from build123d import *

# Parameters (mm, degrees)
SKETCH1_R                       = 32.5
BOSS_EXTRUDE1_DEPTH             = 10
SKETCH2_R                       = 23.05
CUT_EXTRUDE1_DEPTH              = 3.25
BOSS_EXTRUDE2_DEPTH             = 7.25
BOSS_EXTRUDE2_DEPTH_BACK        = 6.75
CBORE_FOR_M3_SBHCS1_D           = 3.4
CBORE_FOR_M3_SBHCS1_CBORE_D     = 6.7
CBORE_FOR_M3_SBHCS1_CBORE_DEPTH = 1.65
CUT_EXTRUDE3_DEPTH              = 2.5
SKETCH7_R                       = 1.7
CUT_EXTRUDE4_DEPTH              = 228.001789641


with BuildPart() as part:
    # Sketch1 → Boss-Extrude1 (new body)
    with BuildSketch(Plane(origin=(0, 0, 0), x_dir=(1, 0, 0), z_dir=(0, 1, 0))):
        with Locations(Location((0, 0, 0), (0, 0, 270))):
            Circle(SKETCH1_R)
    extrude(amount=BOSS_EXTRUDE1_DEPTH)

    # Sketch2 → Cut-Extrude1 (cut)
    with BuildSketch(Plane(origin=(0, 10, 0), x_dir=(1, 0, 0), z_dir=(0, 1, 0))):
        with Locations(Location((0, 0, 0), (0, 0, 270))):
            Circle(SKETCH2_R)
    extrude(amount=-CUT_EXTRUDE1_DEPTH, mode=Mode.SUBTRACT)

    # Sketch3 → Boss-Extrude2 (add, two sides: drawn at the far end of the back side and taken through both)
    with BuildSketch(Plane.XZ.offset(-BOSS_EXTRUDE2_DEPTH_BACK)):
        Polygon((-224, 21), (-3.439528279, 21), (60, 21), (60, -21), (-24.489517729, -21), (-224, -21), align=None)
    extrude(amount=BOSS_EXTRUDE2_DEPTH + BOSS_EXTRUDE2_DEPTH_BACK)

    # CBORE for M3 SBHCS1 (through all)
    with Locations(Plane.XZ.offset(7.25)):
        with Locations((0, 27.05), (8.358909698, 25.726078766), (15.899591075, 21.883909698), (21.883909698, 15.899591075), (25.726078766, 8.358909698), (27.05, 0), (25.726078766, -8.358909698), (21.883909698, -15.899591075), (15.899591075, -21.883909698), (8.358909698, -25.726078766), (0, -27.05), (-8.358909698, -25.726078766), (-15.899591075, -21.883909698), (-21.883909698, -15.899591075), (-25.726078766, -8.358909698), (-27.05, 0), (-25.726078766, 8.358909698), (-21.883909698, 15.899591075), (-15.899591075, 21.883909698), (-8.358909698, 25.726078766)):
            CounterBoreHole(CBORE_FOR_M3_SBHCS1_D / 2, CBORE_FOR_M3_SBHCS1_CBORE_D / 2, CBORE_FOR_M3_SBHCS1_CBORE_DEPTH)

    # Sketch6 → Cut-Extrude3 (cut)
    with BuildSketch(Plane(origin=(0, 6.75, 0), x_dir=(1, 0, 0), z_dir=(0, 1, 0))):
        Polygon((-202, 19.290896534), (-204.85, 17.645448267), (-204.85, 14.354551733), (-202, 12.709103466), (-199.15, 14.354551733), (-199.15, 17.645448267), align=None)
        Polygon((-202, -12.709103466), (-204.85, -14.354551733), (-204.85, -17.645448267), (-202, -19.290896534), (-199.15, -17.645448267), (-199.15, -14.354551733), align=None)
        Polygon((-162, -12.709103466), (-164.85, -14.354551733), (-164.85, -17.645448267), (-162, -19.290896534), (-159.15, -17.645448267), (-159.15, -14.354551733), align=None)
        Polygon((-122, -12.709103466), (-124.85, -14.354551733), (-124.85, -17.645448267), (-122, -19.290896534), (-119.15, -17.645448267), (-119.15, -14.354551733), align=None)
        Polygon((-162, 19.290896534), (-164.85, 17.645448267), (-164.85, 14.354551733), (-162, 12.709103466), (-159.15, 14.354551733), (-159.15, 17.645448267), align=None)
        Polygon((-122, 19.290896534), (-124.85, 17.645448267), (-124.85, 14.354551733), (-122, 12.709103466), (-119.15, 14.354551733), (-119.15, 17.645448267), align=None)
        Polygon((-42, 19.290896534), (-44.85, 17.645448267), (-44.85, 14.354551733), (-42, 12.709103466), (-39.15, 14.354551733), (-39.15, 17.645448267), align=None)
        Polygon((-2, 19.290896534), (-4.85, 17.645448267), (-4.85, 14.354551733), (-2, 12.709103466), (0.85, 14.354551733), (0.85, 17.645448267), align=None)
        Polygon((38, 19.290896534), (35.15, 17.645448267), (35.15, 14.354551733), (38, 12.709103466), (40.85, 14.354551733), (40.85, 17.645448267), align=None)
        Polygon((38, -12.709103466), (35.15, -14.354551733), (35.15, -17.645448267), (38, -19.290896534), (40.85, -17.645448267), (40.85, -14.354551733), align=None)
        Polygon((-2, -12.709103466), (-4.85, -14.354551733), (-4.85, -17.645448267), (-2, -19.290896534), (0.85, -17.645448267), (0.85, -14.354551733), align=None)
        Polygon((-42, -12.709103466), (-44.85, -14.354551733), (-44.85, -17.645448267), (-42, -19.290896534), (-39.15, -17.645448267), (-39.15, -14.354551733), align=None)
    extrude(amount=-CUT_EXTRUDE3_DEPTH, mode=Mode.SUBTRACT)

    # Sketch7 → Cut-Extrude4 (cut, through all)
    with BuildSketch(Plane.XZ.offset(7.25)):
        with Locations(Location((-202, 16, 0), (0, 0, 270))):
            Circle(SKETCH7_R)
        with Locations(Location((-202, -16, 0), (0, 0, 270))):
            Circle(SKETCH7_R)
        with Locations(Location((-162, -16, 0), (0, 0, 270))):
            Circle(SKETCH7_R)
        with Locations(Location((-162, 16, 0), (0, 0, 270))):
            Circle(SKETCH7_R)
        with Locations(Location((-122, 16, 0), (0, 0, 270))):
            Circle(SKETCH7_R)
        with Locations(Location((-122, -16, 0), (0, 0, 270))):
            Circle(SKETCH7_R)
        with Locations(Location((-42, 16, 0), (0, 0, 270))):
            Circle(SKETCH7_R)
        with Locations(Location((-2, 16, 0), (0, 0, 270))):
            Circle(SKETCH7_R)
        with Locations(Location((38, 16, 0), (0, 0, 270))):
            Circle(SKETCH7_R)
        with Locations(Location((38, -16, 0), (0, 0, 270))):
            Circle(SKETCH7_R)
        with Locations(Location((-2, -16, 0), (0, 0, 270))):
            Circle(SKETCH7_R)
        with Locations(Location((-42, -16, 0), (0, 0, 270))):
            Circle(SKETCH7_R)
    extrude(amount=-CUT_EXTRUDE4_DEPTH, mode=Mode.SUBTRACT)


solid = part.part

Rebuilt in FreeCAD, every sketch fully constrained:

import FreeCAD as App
import Part
import Sketcher
from FreeCAD import Vector
Q = App.Units.Quantity

doc = App.newDocument("Part")
params = doc.addObject("Spreadsheet::Sheet", "Params")
for row, (alias, value) in enumerate([
    ("sketch1_diameter", "65 mm"),
    ("pad1_length", "10 mm"),
    ("sketch2_diameter", "46.1 mm"),
    ("pocket1_length", "3.25 mm"),
    ("sketch3_width", "284 mm"),
    ("sketch3_height", "42 mm"),
    ("pad2_length", "7.25 mm"),
    ("pad2_length2", "6.75 mm"),
    ("sketch4_diameter", "3.4 mm"),
    ("hole_diameter", "3.4 mm"),
    ("hole_cbore_diameter", "6.7 mm"),
    ("hole_cbore_depth", "1.65 mm"),
    ("pocket2_length", "2.5 mm"),
    ("sketch6_diameter", "3.4 mm"),
], start=1):
    params.set(f"A{row}", alias)
    params.set(f"B{row}", "=" + value)
    params.setAlias(f"B{row}", alias)

body = doc.addObject("PartDesign::Body", "Body")

# Sketch on XZ plane
sketch1 = body.newObject("Sketcher::SketchObject", "Sketch")
sketch1.AttachmentSupport = (doc.getObject("XZ_Plane"), [""])
sketch1.MapMode = "FlatFace"
sketch1.addGeometry(Part.Circle(Vector(0, 0, 0), Vector(0, 0, 1), 32), False)
sketch1.addConstraint([
    Sketcher.Constraint("Coincident", 0, 3, -1, 1),
    Sketcher.Constraint("Diameter", 0, Q("65 mm")),
])
sketch1.setExpression("Constraints[1]", "Params.sketch1_diameter")
pad1 = body.newObject("PartDesign::Pad", "Pad")
pad1.Profile = sketch1
pad1.setExpression("Length", "Params.pad1_length")
pad1.Reversed = True

# Sketch on XZ plane
sketch2 = body.newObject("Sketcher::SketchObject", "Sketch001")
sketch2.AttachmentSupport = (doc.getObject("XZ_Plane"), [""])
sketch2.MapMode = "FlatFace"
sketch2.AttachmentOffset = App.Placement(Vector(0, 0, -10), App.Rotation())
sketch2.addGeometry(Part.Circle(Vector(0, 0, 0), Vector(0, 0, 1), 23), False)
sketch2.addConstraint([
    Sketcher.Constraint("Coincident", 0, 3, -1, 1),
    Sketcher.Constraint("Diameter", 0, Q("46.1 mm")),
])
sketch2.setExpression("Constraints[1]", "Params.sketch2_diameter")
pocket1 = body.newObject("PartDesign::Pocket", "Pocket")
pocket1.Profile = sketch2
pocket1.setExpression("Length", "Params.pocket1_length")
pocket1.Reversed = True

# Sketch on XZ plane
sketch3 = body.newObject("Sketcher::SketchObject", "Sketch002")
sketch3.AttachmentSupport = (doc.getObject("XZ_Plane"), [""])
sketch3.MapMode = "FlatFace"
sketch3.addGeometry([
    Part.LineSegment(Vector(60, 21, 0), Vector(-224, 21, 0)),
    Part.LineSegment(Vector(-224, 21, 0), Vector(-224, -21, 0)),
    Part.LineSegment(Vector(-224, -21, 0), Vector(60, -21, 0)),
    Part.LineSegment(Vector(60, -21, 0), Vector(60, 21, 0)),
], False)
sketch3.addConstraint([
    Sketcher.Constraint("Coincident", 0, 2, 1, 1),
    Sketcher.Constraint("Coincident", 1, 2, 2, 1),
    Sketcher.Constraint("Coincident", 2, 2, 3, 1),
    Sketcher.Constraint("Coincident", 3, 2, 0, 1),
    Sketcher.Constraint("Horizontal", 0),
    Sketcher.Constraint("Vertical", 1),
    Sketcher.Constraint("Horizontal", 2),
    Sketcher.Constraint("Vertical", 3),
    Sketcher.Constraint("DistanceX", 0, 2, 0, 1, Q("284 mm")),
    Sketcher.Constraint("DistanceY", 1, 2, 1, 1, Q("42 mm")),
    Sketcher.Constraint("DistanceX", 0, 2, -1, 1, Q("224 mm")),
    Sketcher.Constraint("DistanceY", -1, 1, 0, 2, Q("21 mm")),
])
sketch3.setExpression("Constraints[8]", "Params.sketch3_width")
sketch3.setExpression("Constraints[9]", "Params.sketch3_height")
pad2 = body.newObject("PartDesign::Pad", "Pad001")
pad2.Profile = sketch3
pad2.Type = "TwoLengths"
pad2.setExpression("Length", "Params.pad2_length")
pad2.setExpression("Length2", "Params.pad2_length2")

# Sketch on XZ plane
sketch4 = body.newObject("Sketcher::SketchObject", "Sketch003")
sketch4.AttachmentSupport = (doc.getObject("XZ_Plane"), [""])
sketch4.MapMode = "FlatFace"
sketch4.AttachmentOffset = App.Placement(Vector(0, 0, 7.25), App.Rotation())
sketch4.addGeometry([
    Part.Circle(Vector(0, 27.1, 0), Vector(0, 0, 1), 1.7),  # 0
    Part.Circle(Vector(8.4, 25.7, 0), Vector(0, 0, 1), 1.7),  # 1
    Part.Circle(Vector(15.9, 21.9, 0), Vector(0, 0, 1), 1.7),  # 2
    Part.Circle(Vector(21.9, 15.9, 0), Vector(0, 0, 1), 1.7),  # 3
    Part.Circle(Vector(25.7, 8.4, 0), Vector(0, 0, 1), 1.7),  # 4
    Part.Circle(Vector(27.1, 0, 0), Vector(0, 0, 1), 1.7),  # 5
    Part.Circle(Vector(25.7, -8.4, 0), Vector(0, 0, 1), 1.7),  # 6
    Part.Circle(Vector(21.9, -15.9, 0), Vector(0, 0, 1), 1.7),  # 7
    Part.Circle(Vector(15.9, -21.9, 0), Vector(0, 0, 1), 1.7),  # 8
    Part.Circle(Vector(8.4, -25.7, 0), Vector(0, 0, 1), 1.7),  # 9
    Part.Circle(Vector(0, -27.1, 0), Vector(0, 0, 1), 1.7),  # 10
    Part.Circle(Vector(-8.4, -25.7, 0), Vector(0, 0, 1), 1.7),  # 11
    Part.Circle(Vector(-15.9, -21.9, 0), Vector(0, 0, 1), 1.7),  # 12
    Part.Circle(Vector(-21.9, -15.9, 0), Vector(0, 0, 1), 1.7),  # 13
    Part.Circle(Vector(-25.7, -8.4, 0), Vector(0, 0, 1), 1.7),  # 14
    Part.Circle(Vector(-27.1, 0, 0), Vector(0, 0, 1), 1.7),  # 15
    Part.Circle(Vector(-25.7, 8.4, 0), Vector(0, 0, 1), 1.7),  # 16
    Part.Circle(Vector(-21.9, 15.9, 0), Vector(0, 0, 1), 1.7),  # 17
    Part.Circle(Vector(-15.9, 21.9, 0), Vector(0, 0, 1), 1.7),  # 18
    Part.Circle(Vector(-8.4, 25.7, 0), Vector(0, 0, 1), 1.7),  # 19
], False)
sketch4.addConstraint([
    Sketcher.Constraint("Equal", 0, 1),
    Sketcher.Constraint("Equal", 1, 2),
    Sketcher.Constraint("Equal", 2, 3),
    Sketcher.Constraint("Equal", 3, 4),
    Sketcher.Constraint("Equal", 4, 5),
    Sketcher.Constraint("Equal", 5, 6),
    Sketcher.Constraint("Equal", 6, 7),
    Sketcher.Constraint("Equal", 7, 8),
    Sketcher.Constraint("Equal", 8, 9),
    Sketcher.Constraint("Equal", 9, 10),
    Sketcher.Constraint("Equal", 10, 11),
    Sketcher.Constraint("Equal", 11, 12),
    Sketcher.Constraint("Equal", 12, 13),
    Sketcher.Constraint("Equal", 13, 14),
    Sketcher.Constraint("Equal", 14, 15),
    Sketcher.Constraint("Equal", 15, 16),
    Sketcher.Constraint("Equal", 16, 17),
    Sketcher.Constraint("Equal", 17, 18),
    Sketcher.Constraint("Equal", 18, 19),
    Sketcher.Constraint("Symmetric", 0, 3, 10, 3, -1, 1),
    Sketcher.Constraint("Symmetric", 1, 3, 11, 3, -1, 1),
    Sketcher.Constraint("Symmetric", 2, 3, 12, 3, -1, 1),
    Sketcher.Constraint("Symmetric", 3, 3, 13, 3, -1, 1),
    Sketcher.Constraint("Symmetric", 4, 3, 14, 3, -1, 1),
    Sketcher.Constraint("Symmetric", 5, 3, 15, 3, -1, 1),
    Sketcher.Constraint("Symmetric", 6, 3, 16, 3, -1, 1),
    Sketcher.Constraint("Symmetric", 7, 3, 17, 3, -1, 1),
    Sketcher.Constraint("Symmetric", 8, 3, 18, 3, -1, 1),
    Sketcher.Constraint("Symmetric", 9, 3, 19, 3, -1, 1),
    Sketcher.Constraint("Symmetric", 9, 3, 11, 3, -2),
    Sketcher.Constraint("Symmetric", 8, 3, 12, 3, -2),
    Sketcher.Constraint("Symmetric", 7, 3, 13, 3, -2),
    Sketcher.Constraint("Symmetric", 6, 3, 14, 3, -2),
    Sketcher.Constraint("PointOnObject", 0, 3, -2),
    Sketcher.Constraint("PointOnObject", 5, 3, -1),
    Sketcher.Constraint("Diameter", 0, Q("3.4 mm")),
    Sketcher.Constraint("DistanceY", -1, 1, 0, 3, Q("27.05 mm")),
    Sketcher.Constraint("DistanceX", -1, 1, 5, 3, Q("27.05 mm")),
    Sketcher.Constraint("DistanceX", 1, 3, 3, 3, Q("13.525 mm")),
    Sketcher.Constraint("DistanceY", 4, 3, 2, 3, Q("13.525 mm")),
    Sketcher.Constraint("DistanceY", 6, 3, 3, 3, Q("24.258501 mm")),
    Sketcher.Constraint("DistanceX", 11, 3, 8, 3, Q("24.258501 mm")),
    Sketcher.Constraint("DistanceX", -1, 1, 1, 3, Q("8.35891 mm")),
    Sketcher.Constraint("DistanceY", -1, 1, 1, 3, Q("25.726079 mm")),
    Sketcher.Constraint("DistanceY", -1, 1, 2, 3, Q("21.88391 mm")),
    Sketcher.Constraint("DistanceX", -1, 1, 4, 3, Q("25.726079 mm")),
])
sketch4.setExpression("Constraints[35]", "Params.sketch4_diameter")
doc.recompute()
hole = body.newObject("PartDesign::Hole", "Hole")
hole.Profile = sketch4
hole.ThreadType = "None"
hole.setExpression("Diameter", "Params.hole_diameter")
hole.DepthType = "ThroughAll"
hole.HoleCutType = "Counterbore"
hole.setExpression("HoleCutDiameter", "Params.hole_cbore_diameter")
hole.setExpression("HoleCutDepth", "Params.hole_cbore_depth")

# Sketch on XZ plane
sketch5 = body.newObject("Sketcher::SketchObject", "Sketch004")
sketch5.AttachmentSupport = (doc.getObject("XZ_Plane"), [""])
sketch5.MapMode = "FlatFace"
sketch5.AttachmentOffset = App.Placement(Vector(0, 0, -6.75), App.Rotation())
sketch5.addGeometry([
    Part.LineSegment(Vector(-202, -19.3, 0), Vector(-204.8, -17.6, 0)),  # 0
    Part.LineSegment(Vector(-204.8, -17.6, 0), Vector(-204.8, -14.4, 0)),  # 1
    Part.LineSegment(Vector(-204.8, -14.4, 0), Vector(-202, -12.7, 0)),  # 2
    Part.LineSegment(Vector(-202, -12.7, 0), Vector(-199.2, -14.4, 0)),  # 3
    Part.LineSegment(Vector(-199.2, -14.4, 0), Vector(-199.2, -17.6, 0)),  # 4
    Part.LineSegment(Vector(-199.2, -17.6, 0), Vector(-202, -19.3, 0)),  # 5
    Part.LineSegment(Vector(-202, 12.7, 0), Vector(-204.8, 14.4, 0)),  # 6
    Part.LineSegment(Vector(-204.8, 14.4, 0), Vector(-204.8, 17.6, 0)),  # 7
    Part.LineSegment(Vector(-204.8, 17.6, 0), Vector(-202, 19.3, 0)),  # 8
    Part.LineSegment(Vector(-202, 19.3, 0), Vector(-199.2, 17.6, 0)),  # 9
    Part.LineSegment(Vector(-199.2, 17.6, 0), Vector(-199.2, 14.4, 0)),  # 10
    Part.LineSegment(Vector(-199.2, 14.4, 0), Vector(-202, 12.7, 0)),  # 11
    Part.LineSegment(Vector(-162, 12.7, 0), Vector(-164.8, 14.4, 0)),  # 12
    Part.LineSegment(Vector(-164.8, 14.4, 0), Vector(-164.8, 17.6, 0)),  # 13
    Part.LineSegment(Vector(-164.8, 17.6, 0), Vector(-162, 19.3, 0)),  # 14
    Part.LineSegment(Vector(-162, 19.3, 0), Vector(-159.2, 17.6, 0)),  # 15
    Part.LineSegment(Vector(-159.2, 17.6, 0), Vector(-159.2, 14.4, 0)),  # 16
    Part.LineSegment(Vector(-159.2, 14.4, 0), Vector(-162, 12.7, 0)),  # 17
    Part.LineSegment(Vector(-122, 12.7, 0), Vector(-124.8, 14.4, 0)),  # 18
    Part.LineSegment(Vector(-124.8, 14.4, 0), Vector(-124.8, 17.6, 0)),  # 19
    Part.LineSegment(Vector(-124.8, 17.6, 0), Vector(-122, 19.3, 0)),  # 20
    Part.LineSegment(Vector(-122, 19.3, 0), Vector(-119.2, 17.6, 0)),  # 21
    Part.LineSegment(Vector(-119.2, 17.6, 0), Vector(-119.2, 14.4, 0)),  # 22
    Part.LineSegment(Vector(-119.2, 14.4, 0), Vector(-122, 12.7, 0)),  # 23
    Part.LineSegment(Vector(-162, -19.3, 0), Vector(-164.8, -17.6, 0)),  # 24
    Part.LineSegment(Vector(-164.8, -17.6, 0), Vector(-164.8, -14.4, 0)),  # 25
    Part.LineSegment(Vector(-164.8, -14.4, 0), Vector(-162, -12.7, 0)),  # 26
    Part.LineSegment(Vector(-162, -12.7, 0), Vector(-159.2, -14.4, 0)),  # 27
    Part.LineSegment(Vector(-159.2, -14.4, 0), Vector(-159.2, -17.6, 0)),  # 28
    Part.LineSegment(Vector(-159.2, -17.6, 0), Vector(-162, -19.3, 0)),  # 29
    Part.LineSegment(Vector(-122, -19.3, 0), Vector(-124.8, -17.6, 0)),  # 30
    Part.LineSegment(Vector(-124.8, -17.6, 0), Vector(-124.8, -14.4, 0)),  # 31
    Part.LineSegment(Vector(-124.8, -14.4, 0), Vector(-122, -12.7, 0)),  # 32
    Part.LineSegment(Vector(-122, -12.7, 0), Vector(-119.2, -14.4, 0)),  # 33
    Part.LineSegment(Vector(-119.2, -14.4, 0), Vector(-119.2, -17.6, 0)),  # 34
    Part.LineSegment(Vector(-119.2, -17.6, 0), Vector(-122, -19.3, 0)),  # 35
    Part.LineSegment(Vector(-42, -19.3, 0), Vector(-44.9, -17.6, 0)),  # 36
    Part.LineSegment(Vector(-44.9, -17.6, 0), Vector(-44.9, -14.4, 0)),  # 37
    Part.LineSegment(Vector(-44.9, -14.4, 0), Vector(-42, -12.7, 0)),  # 38
    Part.LineSegment(Vector(-42, -12.7, 0), Vector(-39.1, -14.4, 0)),  # 39
    Part.LineSegment(Vector(-39.1, -14.4, 0), Vector(-39.1, -17.6, 0)),  # 40
    Part.LineSegment(Vector(-39.1, -17.6, 0), Vector(-42, -19.3, 0)),  # 41
    Part.LineSegment(Vector(-2, -19.3, 0), Vector(-4.8, -17.6, 0)),  # 42
    Part.LineSegment(Vector(-4.8, -17.6, 0), Vector(-4.8, -14.4, 0)),  # 43
    Part.LineSegment(Vector(-4.8, -14.4, 0), Vector(-2, -12.7, 0)),  # 44
    Part.LineSegment(Vector(-2, -12.7, 0), Vector(0.8, -14.4, 0)),  # 45
    Part.LineSegment(Vector(0.8, -14.4, 0), Vector(0.8, -17.6, 0)),  # 46
    Part.LineSegment(Vector(0.8, -17.6, 0), Vector(-2, -19.3, 0)),  # 47
    Part.LineSegment(Vector(38, -19.3, 0), Vector(35.1, -17.6, 0)),  # 48
    Part.LineSegment(Vector(35.1, -17.6, 0), Vector(35.1, -14.4, 0)),  # 49
    Part.LineSegment(Vector(35.1, -14.4, 0), Vector(38, -12.7, 0)),  # 50
    Part.LineSegment(Vector(38, -12.7, 0), Vector(40.9, -14.4, 0)),  # 51
    Part.LineSegment(Vector(40.9, -14.4, 0), Vector(40.9, -17.6, 0)),  # 52
    Part.LineSegment(Vector(40.9, -17.6, 0), Vector(38, -19.3, 0)),  # 53
    Part.LineSegment(Vector(38, 12.7, 0), Vector(35.1, 14.4, 0)),  # 54
    Part.LineSegment(Vector(35.1, 14.4, 0), Vector(35.1, 17.6, 0)),  # 55
    Part.LineSegment(Vector(35.1, 17.6, 0), Vector(38, 19.3, 0)),  # 56
    Part.LineSegment(Vector(38, 19.3, 0), Vector(40.9, 17.6, 0)),  # 57
    Part.LineSegment(Vector(40.9, 17.6, 0), Vector(40.9, 14.4, 0)),  # 58
    Part.LineSegment(Vector(40.9, 14.4, 0), Vector(38, 12.7, 0)),  # 59
    Part.LineSegment(Vector(-2, 12.7, 0), Vector(-4.8, 14.4, 0)),  # 60
    Part.LineSegment(Vector(-4.8, 14.4, 0), Vector(-4.8, 17.6, 0)),  # 61
    Part.LineSegment(Vector(-4.8, 17.6, 0), Vector(-2, 19.3, 0)),  # 62
    Part.LineSegment(Vector(-2, 19.3, 0), Vector(0.8, 17.6, 0)),  # 63
    Part.LineSegment(Vector(0.8, 17.6, 0), Vector(0.8, 14.4, 0)),  # 64
    Part.LineSegment(Vector(0.8, 14.4, 0), Vector(-2, 12.7, 0)),  # 65
    Part.LineSegment(Vector(-42, 12.7, 0), Vector(-44.9, 14.4, 0)),  # 66
    Part.LineSegment(Vector(-44.9, 14.4, 0), Vector(-44.9, 17.6, 0)),  # 67
    Part.LineSegment(Vector(-44.9, 17.6, 0), Vector(-42, 19.3, 0)),  # 68
    Part.LineSegment(Vector(-42, 19.3, 0), Vector(-39.1, 17.6, 0)),  # 69
    Part.LineSegment(Vector(-39.1, 17.6, 0), Vector(-39.1, 14.4, 0)),  # 70
    Part.LineSegment(Vector(-39.1, 14.4, 0), Vector(-42, 12.7, 0)),  # 71
], False)
sketch5.addConstraint([
    Sketcher.Constraint("Coincident", 0, 2, 1, 1),
    Sketcher.Constraint("Coincident", 1, 2, 2, 1),
    Sketcher.Constraint("Coincident", 2, 2, 3, 1),
    Sketcher.Constraint("Coincident", 3, 2, 4, 1),
    Sketcher.Constraint("Coincident", 4, 2, 5, 1),
    Sketcher.Constraint("Coincident", 5, 2, 0, 1),
    Sketcher.Constraint("Coincident", 6, 2, 7, 1),
    Sketcher.Constraint("Coincident", 7, 2, 8, 1),
    Sketcher.Constraint("Coincident", 8, 2, 9, 1),
    Sketcher.Constraint("Coincident", 9, 2, 10, 1),
    Sketcher.Constraint("Coincident", 10, 2, 11, 1),
    Sketcher.Constraint("Coincident", 11, 2, 6, 1),
    Sketcher.Constraint("Coincident", 12, 2, 13, 1),
    Sketcher.Constraint("Coincident", 13, 2, 14, 1),
    Sketcher.Constraint("Coincident", 14, 2, 15, 1),
    Sketcher.Constraint("Coincident", 15, 2, 16, 1),
    Sketcher.Constraint("Coincident", 16, 2, 17, 1),
    Sketcher.Constraint("Coincident", 17, 2, 12, 1),
    Sketcher.Constraint("Coincident", 18, 2, 19, 1),
    Sketcher.Constraint("Coincident", 19, 2, 20, 1),
    Sketcher.Constraint("Coincident", 20, 2, 21, 1),
    Sketcher.Constraint("Coincident", 21, 2, 22, 1),
    Sketcher.Constraint("Coincident", 22, 2, 23, 1),
    Sketcher.Constraint("Coincident", 23, 2, 18, 1),
    Sketcher.Constraint("Coincident", 24, 2, 25, 1),
    Sketcher.Constraint("Coincident", 25, 2, 26, 1),
    Sketcher.Constraint("Coincident", 26, 2, 27, 1),
    Sketcher.Constraint("Coincident", 27, 2, 28, 1),
    Sketcher.Constraint("Coincident", 28, 2, 29, 1),
    Sketcher.Constraint("Coincident", 29, 2, 24, 1),
    Sketcher.Constraint("Coincident", 30, 2, 31, 1),
    Sketcher.Constraint("Coincident", 31, 2, 32, 1),
    Sketcher.Constraint("Coincident", 32, 2, 33, 1),
    Sketcher.Constraint("Coincident", 33, 2, 34, 1),
    Sketcher.Constraint("Coincident", 34, 2, 35, 1),
    Sketcher.Constraint("Coincident", 35, 2, 30, 1),
    Sketcher.Constraint("Coincident", 36, 2, 37, 1),
    Sketcher.Constraint("Coincident", 37, 2, 38, 1),
    Sketcher.Constraint("Coincident", 38, 2, 39, 1),
    Sketcher.Constraint("Coincident", 39, 2, 40, 1),
    Sketcher.Constraint("Coincident", 40, 2, 41, 1),
    Sketcher.Constraint("Coincident", 41, 2, 36, 1),
    Sketcher.Constraint("Coincident", 42, 2, 43, 1),
    Sketcher.Constraint("Coincident", 43, 2, 44, 1),
    Sketcher.Constraint("Coincident", 44, 2, 45, 1),
    Sketcher.Constraint("Coincident", 45, 2, 46, 1),
    Sketcher.Constraint("Coincident", 46, 2, 47, 1),
    Sketcher.Constraint("Coincident", 47, 2, 42, 1),
    Sketcher.Constraint("Coincident", 48, 2, 49, 1),
    Sketcher.Constraint("Coincident", 49, 2, 50, 1),
    Sketcher.Constraint("Coincident", 50, 2, 51, 1),
    Sketcher.Constraint("Coincident", 51, 2, 52, 1),
    Sketcher.Constraint("Coincident", 52, 2, 53, 1),
    Sketcher.Constraint("Coincident", 53, 2, 48, 1),
    Sketcher.Constraint("Coincident", 54, 2, 55, 1),
    Sketcher.Constraint("Coincident", 55, 2, 56, 1),
    Sketcher.Constraint("Coincident", 56, 2, 57, 1),
    Sketcher.Constraint("Coincident", 57, 2, 58, 1),
    Sketcher.Constraint("Coincident", 58, 2, 59, 1),
    Sketcher.Constraint("Coincident", 59, 2, 54, 1),
    Sketcher.Constraint("Coincident", 60, 2, 61, 1),
    Sketcher.Constraint("Coincident", 61, 2, 62, 1),
    Sketcher.Constraint("Coincident", 62, 2, 63, 1),
    Sketcher.Constraint("Coincident", 63, 2, 64, 1),
    Sketcher.Constraint("Coincident", 64, 2, 65, 1),
    Sketcher.Constraint("Coincident", 65, 2, 60, 1),
    Sketcher.Constraint("Coincident", 66, 2, 67, 1),
    Sketcher.Constraint("Coincident", 67, 2, 68, 1),
    Sketcher.Constraint("Coincident", 68, 2, 69, 1),
    Sketcher.Constraint("Coincident", 69, 2, 70, 1),
    Sketcher.Constraint("Coincident", 70, 2, 71, 1),
    Sketcher.Constraint("Coincident", 71, 2, 66, 1),
    Sketcher.Constraint("Vertical", 1),
    Sketcher.Constraint("Vertical", 4),
    Sketcher.Constraint("Vertical", 7),
    Sketcher.Constraint("Vertical", 10),
    Sketcher.Constraint("Vertical", 13),
    Sketcher.Constraint("Vertical", 16),
    Sketcher.Constraint("Vertical", 19),
    Sketcher.Constraint("Vertical", 22),
    Sketcher.Constraint("Vertical", 25),
    Sketcher.Constraint("Vertical", 28),
    Sketcher.Constraint("Vertical", 31),
    Sketcher.Constraint("Vertical", 34),
    Sketcher.Constraint("Vertical", 37),
    Sketcher.Constraint("Vertical", 40),
    Sketcher.Constraint("Vertical", 43),
    Sketcher.Constraint("Vertical", 46),
    Sketcher.Constraint("Vertical", 49),
    Sketcher.Constraint("Vertical", 52),
    Sketcher.Constraint("Vertical", 55),
    Sketcher.Constraint("Vertical", 58),
    Sketcher.Constraint("Vertical", 61),
    Sketcher.Constraint("Vertical", 64),
    Sketcher.Constraint("Vertical", 67),
    Sketcher.Constraint("Vertical", 70),
    Sketcher.Constraint("Symmetric", 1, 2, 6, 2, -1),
    Sketcher.Constraint("Symmetric", 5, 2, 8, 2, -1),
    Sketcher.Constraint("Symmetric", 4, 2, 9, 2, -1),
    Sketcher.Constraint("Symmetric", 2, 2, 11, 2, -1),
    Sketcher.Constraint("Symmetric", 13, 2, 24, 2, -1),
    Sketcher.Constraint("Symmetric", 17, 2, 26, 2, -1),
    Sketcher.Constraint("Symmetric", 16, 2, 27, 2, -1),
    Sketcher.Constraint("Symmetric", 14, 2, 29, 2, -1),
    Sketcher.Constraint("Symmetric", 19, 2, 30, 2, -1),
    Sketcher.Constraint("Symmetric", 23, 2, 32, 2, -1),
    Sketcher.Constraint("Symmetric", 22, 2, 33, 2, -1),
    Sketcher.Constraint("Symmetric", 20, 2, 35, 2, -1),
    Sketcher.Constraint("Symmetric", 49, 2, 54, 2, -1),
    Sketcher.Constraint("Symmetric", 53, 2, 56, 2, -1),
    Sketcher.Constraint("Symmetric", 52, 2, 57, 2, -1),
    Sketcher.Constraint("Symmetric", 50, 2, 59, 2, -1),
    Sketcher.Constraint("Symmetric", 43, 2, 60, 2, -1),
    Sketcher.Constraint("Symmetric", 47, 2, 62, 2, -1),
    Sketcher.Constraint("Symmetric", 46, 2, 63, 2, -1),
    Sketcher.Constraint("Symmetric", 44, 2, 65, 2, -1),
    Sketcher.Constraint("Symmetric", 37, 2, 66, 2, -1),
    Sketcher.Constraint("Symmetric", 41, 2, 68, 2, -1),
    Sketcher.Constraint("Symmetric", 40, 2, 69, 2, -1),
    Sketcher.Constraint("Symmetric", 38, 2, 71, 2, -1),
    Sketcher.Constraint("Parallel", 0, 3),
    Sketcher.Constraint("Parallel", 2, 5),
    Sketcher.Constraint("Parallel", 3, 6),
    Sketcher.Constraint("Parallel", 5, 8),
    Sketcher.Constraint("Parallel", 8, 11),
    Sketcher.Constraint("Parallel", 9, 12),
    Sketcher.Constraint("Parallel", 11, 14),
    Sketcher.Constraint("Parallel", 12, 15),
    Sketcher.Constraint("Parallel", 14, 17),
    Sketcher.Constraint("Parallel", 15, 18),
    Sketcher.Constraint("Parallel", 17, 20),
    Sketcher.Constraint("Parallel", 18, 21),
    Sketcher.Constraint("Parallel", 20, 23),
    Sketcher.Constraint("Parallel", 23, 26),
    Sketcher.Constraint("Parallel", 26, 29),
    Sketcher.Constraint("Parallel", 29, 32),
    Sketcher.Constraint("Parallel", 32, 35),
    Sketcher.Constraint("Parallel", 33, 36),
    Sketcher.Constraint("Parallel", 35, 38),
    Sketcher.Constraint("Parallel", 36, 39),
    Sketcher.Constraint("Parallel", 38, 41),
    Sketcher.Constraint("Parallel", 39, 42),
    Sketcher.Constraint("Parallel", 41, 44),
    Sketcher.Constraint("Parallel", 42, 45),
    Sketcher.Constraint("Parallel", 44, 47),
    Sketcher.Constraint("Parallel", 45, 48),
    Sketcher.Constraint("Parallel", 47, 50),
    Sketcher.Constraint("Parallel", 48, 51),
    Sketcher.Constraint("Parallel", 50, 53),
    Sketcher.Constraint("Parallel", 53, 56),
    Sketcher.Constraint("Parallel", 56, 59),
    Sketcher.Constraint("Parallel", 59, 62),
    Sketcher.Constraint("Parallel", 62, 65),
    Sketcher.Constraint("Parallel", 65, 68),
    Sketcher.Constraint("Parallel", 68, 71),
    Sketcher.Constraint("Horizontal", 1, 2, 3, 2),
    Sketcher.Constraint("Horizontal", 0, 2, 4, 2),
    Sketcher.Constraint("Horizontal", 10, 2, 12, 2),
    Sketcher.Constraint("Horizontal", 9, 2, 13, 2),
    Sketcher.Constraint("Horizontal", 8, 2, 14, 2),
    Sketcher.Constraint("Horizontal", 13, 2, 15, 2),
    Sketcher.Constraint("Horizontal", 12, 2, 16, 2),
    Sketcher.Constraint("Horizontal", 16, 2, 18, 2),
    Sketcher.Constraint("Horizontal", 15, 2, 19, 2),
    Sketcher.Constraint("Horizontal", 14, 2, 20, 2),
    Sketcher.Constraint("Horizontal", 19, 2, 21, 2),
    Sketcher.Constraint("Horizontal", 18, 2, 22, 2),
    Sketcher.Constraint("Horizontal", 34, 2, 36, 2),
    Sketcher.Constraint("Horizontal", 33, 2, 37, 2),
    Sketcher.Constraint("Horizontal", 32, 2, 38, 2),
    Sketcher.Constraint("Horizontal", 37, 2, 39, 2),
    Sketcher.Constraint("Horizontal", 36, 2, 40, 2),
    Sketcher.Constraint("Horizontal", 40, 2, 42, 2),
    Sketcher.Constraint("Horizontal", 39, 2, 43, 2),
    Sketcher.Constraint("Horizontal", 38, 2, 44, 2),
    Sketcher.Constraint("Horizontal", 43, 2, 45, 2),
    Sketcher.Constraint("Horizontal", 42, 2, 46, 2),
    Sketcher.Constraint("Horizontal", 46, 2, 48, 2),
    Sketcher.Constraint("Horizontal", 45, 2, 49, 2),
    Sketcher.Constraint("Horizontal", 44, 2, 50, 2),
    Sketcher.Constraint("Horizontal", 49, 2, 51, 2),
    Sketcher.Constraint("Horizontal", 48, 2, 52, 2),
    Sketcher.Constraint("Angle", 0, Q("150 deg")),
    Sketcher.Constraint("DistanceX", 2, 2, -1, 1, Q("202 mm")),
    Sketcher.Constraint("DistanceX", 14, 2, -1, 1, Q("162 mm")),
    Sketcher.Constraint("DistanceX", 20, 2, -1, 1, Q("122 mm")),
    Sketcher.Constraint("DistanceX", 38, 2, -1, 1, Q("42 mm")),
    Sketcher.Constraint("DistanceX", 44, 2, -1, 1, Q("2 mm")),
    Sketcher.Constraint("DistanceX", -1, 1, 50, 2, Q("38 mm")),
    Sketcher.Constraint("DistanceX", 0, 2, -1, 1, Q("204.85 mm")),
    Sketcher.Constraint("DistanceY", 1, 1, 1, 2, Q("3.290897 mm")),
    Sketcher.Constraint("DistanceY", 0, 2, -1, 1, Q("17.645448 mm")),
])
pocket2 = body.newObject("PartDesign::Pocket", "Pocket001")
pocket2.Profile = sketch5
pocket2.setExpression("Length", "Params.pocket2_length")
pocket2.Reversed = True

# Sketch on XZ plane
sketch6 = body.newObject("Sketcher::SketchObject", "Sketch005")
sketch6.AttachmentSupport = (doc.getObject("XZ_Plane"), [""])
sketch6.MapMode = "FlatFace"
sketch6.AttachmentOffset = App.Placement(Vector(0, 0, 7.25), App.Rotation())
sketch6.addGeometry([
    Part.Circle(Vector(-202, 16, 0), Vector(0, 0, 1), 1.7),  # 0
    Part.Circle(Vector(-202, -16, 0), Vector(0, 0, 1), 1.7),  # 1
    Part.Circle(Vector(-162, -16, 0), Vector(0, 0, 1), 1.7),  # 2
    Part.Circle(Vector(-162, 16, 0), Vector(0, 0, 1), 1.7),  # 3
    Part.Circle(Vector(-122, 16, 0), Vector(0, 0, 1), 1.7),  # 4
    Part.Circle(Vector(-122, -16, 0), Vector(0, 0, 1), 1.7),  # 5
    Part.Circle(Vector(-42, 16, 0), Vector(0, 0, 1), 1.7),  # 6
    Part.Circle(Vector(-2, 16, 0), Vector(0, 0, 1), 1.7),  # 7
    Part.Circle(Vector(38, 16, 0), Vector(0, 0, 1), 1.7),  # 8
    Part.Circle(Vector(38, -16, 0), Vector(0, 0, 1), 1.7),  # 9
    Part.Circle(Vector(-2, -16, 0), Vector(0, 0, 1), 1.7),  # 10
    Part.Circle(Vector(-42, -16, 0), Vector(0, 0, 1), 1.7),  # 11
], False)
sketch6.addConstraint([
    Sketcher.Constraint("Equal", 0, 1),
    Sketcher.Constraint("Equal", 1, 2),
    Sketcher.Constraint("Equal", 2, 3),
    Sketcher.Constraint("Equal", 3, 4),
    Sketcher.Constraint("Equal", 4, 5),
    Sketcher.Constraint("Equal", 5, 6),
    Sketcher.Constraint("Equal", 6, 7),
    Sketcher.Constraint("Equal", 7, 8),
    Sketcher.Constraint("Equal", 8, 9),
    Sketcher.Constraint("Equal", 9, 10),
    Sketcher.Constraint("Equal", 10, 11),
    Sketcher.Constraint("Symmetric", 0, 3, 1, 3, -1),
    Sketcher.Constraint("Symmetric", 2, 3, 3, 3, -1),
    Sketcher.Constraint("Symmetric", 4, 3, 5, 3, -1),
    Sketcher.Constraint("Symmetric", 8, 3, 9, 3, -1),
    Sketcher.Constraint("Symmetric", 7, 3, 10, 3, -1),
    Sketcher.Constraint("Symmetric", 6, 3, 11, 3, -1),
    Sketcher.Constraint("Horizontal", 1, 3, 2, 3),
    Sketcher.Constraint("Horizontal", 3, 3, 4, 3),
    Sketcher.Constraint("Horizontal", 4, 3, 6, 3),
    Sketcher.Constraint("Horizontal", 6, 3, 7, 3),
    Sketcher.Constraint("Horizontal", 7, 3, 8, 3),
    Sketcher.Constraint("Diameter", 0, Q("3.4 mm")),
    Sketcher.Constraint("DistanceX", 0, 3, -1, 1, Q("202 mm")),
    Sketcher.Constraint("DistanceY", -1, 1, 0, 3, Q("16 mm")),
    Sketcher.Constraint("DistanceX", 2, 3, -1, 1, Q("162 mm")),
    Sketcher.Constraint("DistanceX", 4, 3, -1, 1, Q("122 mm")),
    Sketcher.Constraint("DistanceX", 6, 3, -1, 1, Q("42 mm")),
    Sketcher.Constraint("DistanceX", 7, 3, -1, 1, Q("2 mm")),
    Sketcher.Constraint("DistanceX", -1, 1, 8, 3, Q("38 mm")),
])
sketch6.setExpression("Constraints[22]", "Params.sketch6_diameter")
pocket3 = body.newObject("PartDesign::Pocket", "Pocket002")
pocket3.Profile = sketch6
pocket3.Type = "ThroughAll"

doc.recompute()
